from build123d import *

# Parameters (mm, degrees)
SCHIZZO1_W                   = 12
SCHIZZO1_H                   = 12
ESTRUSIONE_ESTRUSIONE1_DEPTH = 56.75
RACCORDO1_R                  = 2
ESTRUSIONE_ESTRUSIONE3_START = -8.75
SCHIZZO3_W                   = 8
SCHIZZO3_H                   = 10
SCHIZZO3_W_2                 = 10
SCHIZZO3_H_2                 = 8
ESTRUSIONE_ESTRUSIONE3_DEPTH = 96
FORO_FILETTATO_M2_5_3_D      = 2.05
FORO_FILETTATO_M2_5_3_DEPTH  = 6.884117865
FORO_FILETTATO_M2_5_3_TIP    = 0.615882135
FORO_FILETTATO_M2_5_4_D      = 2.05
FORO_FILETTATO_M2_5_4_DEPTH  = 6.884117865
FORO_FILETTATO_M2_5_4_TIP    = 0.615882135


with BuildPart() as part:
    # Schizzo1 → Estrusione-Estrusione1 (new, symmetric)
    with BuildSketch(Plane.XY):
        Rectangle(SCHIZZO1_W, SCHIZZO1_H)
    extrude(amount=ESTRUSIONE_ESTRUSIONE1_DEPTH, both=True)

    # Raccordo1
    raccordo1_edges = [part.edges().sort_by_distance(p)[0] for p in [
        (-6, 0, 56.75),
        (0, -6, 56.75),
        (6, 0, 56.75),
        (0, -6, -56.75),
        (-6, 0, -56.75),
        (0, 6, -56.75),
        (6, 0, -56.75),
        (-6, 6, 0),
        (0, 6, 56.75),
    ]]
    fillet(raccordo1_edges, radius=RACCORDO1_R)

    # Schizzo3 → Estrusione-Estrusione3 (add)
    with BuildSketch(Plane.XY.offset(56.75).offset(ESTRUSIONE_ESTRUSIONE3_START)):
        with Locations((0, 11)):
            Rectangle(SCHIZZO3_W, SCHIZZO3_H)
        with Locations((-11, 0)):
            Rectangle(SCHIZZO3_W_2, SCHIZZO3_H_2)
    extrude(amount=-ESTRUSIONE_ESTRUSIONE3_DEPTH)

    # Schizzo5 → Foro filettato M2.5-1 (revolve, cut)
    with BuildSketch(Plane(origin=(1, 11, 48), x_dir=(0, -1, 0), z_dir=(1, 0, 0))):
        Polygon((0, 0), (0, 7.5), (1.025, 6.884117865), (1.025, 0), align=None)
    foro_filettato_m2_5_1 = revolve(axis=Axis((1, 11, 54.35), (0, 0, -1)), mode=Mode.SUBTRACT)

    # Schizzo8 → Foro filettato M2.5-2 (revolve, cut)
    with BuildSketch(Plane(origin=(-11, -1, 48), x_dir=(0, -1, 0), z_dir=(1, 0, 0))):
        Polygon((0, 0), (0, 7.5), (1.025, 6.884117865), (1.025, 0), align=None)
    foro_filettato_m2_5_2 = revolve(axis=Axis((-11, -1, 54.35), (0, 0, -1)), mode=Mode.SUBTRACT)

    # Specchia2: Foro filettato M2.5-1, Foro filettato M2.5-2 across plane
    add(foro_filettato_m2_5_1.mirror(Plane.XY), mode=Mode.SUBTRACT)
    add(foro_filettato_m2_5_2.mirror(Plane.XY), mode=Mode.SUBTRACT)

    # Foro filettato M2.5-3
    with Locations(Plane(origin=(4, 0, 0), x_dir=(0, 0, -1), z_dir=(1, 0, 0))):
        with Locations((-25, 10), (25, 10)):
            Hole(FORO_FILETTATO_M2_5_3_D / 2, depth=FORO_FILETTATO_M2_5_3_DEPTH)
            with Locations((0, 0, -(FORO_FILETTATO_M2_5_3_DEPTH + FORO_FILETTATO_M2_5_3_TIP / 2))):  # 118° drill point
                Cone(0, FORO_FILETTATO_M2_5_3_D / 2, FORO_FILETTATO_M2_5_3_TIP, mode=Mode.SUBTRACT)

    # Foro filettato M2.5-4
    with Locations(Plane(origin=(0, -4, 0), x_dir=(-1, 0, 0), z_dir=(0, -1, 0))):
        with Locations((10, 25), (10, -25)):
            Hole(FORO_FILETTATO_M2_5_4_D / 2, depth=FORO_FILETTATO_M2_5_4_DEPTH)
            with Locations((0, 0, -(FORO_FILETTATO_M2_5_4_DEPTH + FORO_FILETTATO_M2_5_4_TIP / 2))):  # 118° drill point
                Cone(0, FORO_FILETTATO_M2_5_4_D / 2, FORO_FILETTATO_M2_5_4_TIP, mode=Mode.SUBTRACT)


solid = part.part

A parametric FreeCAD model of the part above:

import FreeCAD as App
import Part
import Sketcher
Q = App.Units.Quantity


def edges_at(feature, points):
    """Names of the edges that pass closest to the given points."""
    edges = feature.Shape.Edges
    near = lambda p: min(range(len(edges)), key=lambda i: edges[i].distToShape(Part.Vertex(*p))[0])
    return sorted({f"Edge{near(p) + 1}" for p in points})


def add_polygon(sketch, points):
    """Adds a closed chain of lines whose ends are joined by coincident constraints."""
    first, n = sketch.GeometryCount, len(points)
    for a, b in zip(points, points[1:] + points[:1]):
        sketch.addGeometry(Part.LineSegment(App.Vector(*a, 0), App.Vector(*b, 0)), False)
    for i in range(n):
        sketch.addConstraint(Sketcher.Constraint("Coincident", first + i, 2, first + (i + 1) % n, 1))

doc = App.newDocument("Part")
body = doc.addObject("PartDesign::Body", "Body")

sketch1 = body.newObject("Sketcher::SketchObject", "Sketch")
sketch1.AttachmentSupport = (doc.getObject("XY_Plane"), [""])
sketch1.MapMode = "FlatFace"
add_polygon(sketch1, [(-6, 6), (-6, -6), (6, -6), (6, 6)])
sketch1.addConstraint([
    Sketcher.Constraint("Vertical", 0),
    Sketcher.Constraint("Horizontal", 1),
    Sketcher.Constraint("Vertical", 2),
    Sketcher.Constraint("Horizontal", 3),
    Sketcher.Constraint("Symmetric", 0, 2, 2, 2, -1, 1),
    Sketcher.Constraint("Equal", 3, 0),
    Sketcher.Constraint("DistanceX", 1, 1, 1, 2, Q("12 mm")),
])
pad1 = body.newObject("PartDesign::Pad", "Pad")
pad1.Profile = sketch1
pad1.Length = 113.5
pad1.Midplane = True
doc.recompute()

fillet = body.newObject("PartDesign::Fillet", "Fillet")
fillet.Base = (pad1, edges_at(pad1, [
    (-6, 0, 56.75),
    (0, -6, 56.75),
    (6, 0, 56.75),
    (0, -6, -56.75),
    (-6, 0, -56.75),
    (0, 6, -56.75),
    (6, 0, -56.75),
    (-6, 6, 0),
    (0, 6, 56.75),
]))
fillet.Radius = 2

sketch2 = body.newObject("Sketcher::SketchObject", "Sketch001")
sketch2.AttachmentSupport = (doc.getObject("XY_Plane"), [""])
sketch2.MapMode = "FlatFace"
sketch2.AttachmentOffset = App.Placement(App.Vector(0, 0, 48), App.Rotation())
add_polygon(sketch2, [(-4, 16), (-4, 6), (4, 6), (4, 16)])
add_polygon(sketch2, [(-16, 4), (-16, -4), (-6, -4), (-6, 4)])
sketch2.addConstraint([
    Sketcher.Constraint("Vertical", 0),
    Sketcher.Constraint("Horizontal", 1),
    Sketcher.Constraint("Vertical", 2),
    Sketcher.Constraint("Horizontal", 3),
    Sketcher.Constraint("Vertical", 4),
    Sketcher.Constraint("Horizontal", 5),
    Sketcher.Constraint("Vertical", 6),
    Sketcher.Constraint("Horizontal", 7),
    Sketcher.Constraint("Equal", 7, 0),
    Sketcher.Constraint("Equal", 3, 4),
    Sketcher.Constraint("DistanceX", 1, 1, 1, 2, Q("8 mm")),
    Sketcher.Constraint("DistanceX", 5, 1, 5, 2, Q("10 mm")),
    Sketcher.Constraint("DistanceX", 0, 2, -1, 1, Q("4 mm")),
    Sketcher.Constraint("DistanceY", -1, 1, 0, 2, Q("6 mm")),
    Sketcher.Constraint("DistanceX", 4, 2, -1, 1, Q("16 mm")),
    Sketcher.Constraint("DistanceY", 4, 2, -1, 1, Q("4 mm")),
])
pad2 = body.newObject("PartDesign::Pad", "Pad001")
pad2.Profile = sketch2
pad2.Length = 96
pad2.Reversed = True

sketch3 = body.newObject("Sketcher::SketchObject", "Sketch002")
sketch3.AttachmentSupport = (doc.getObject("YZ_Plane"), [""])
sketch3.MapMode = "FlatFace"
sketch3.AttachmentOffset = App.Placement(App.Vector(0, 0, 1), App.Rotation())
add_polygon(sketch3, [(11, 40.5), (11, 48), (10, 48), (10, 41.1)])
sketch3.addGeometry(Part.LineSegment(App.Vector(11, 48, 0), App.Vector(11, 40.5, 0)), True)
sketch3.addConstraint([
    Sketcher.Constraint("Vertical", 0),
    Sketcher.Constraint("Horizontal", 1),
    Sketcher.Constraint("Vertical", 2),
    Sketcher.Constraint("Vertical", 4),
    Sketcher.Constraint("Coincident", 4, 1, 0, 2),
    Sketcher.Constraint("Equal", 0, 4),
    Sketcher.Constraint("Angle", 3, Q("-31 deg")),
    Sketcher.Constraint("DistanceY", 0, 1, 0, 2, Q("7.5 mm")),
    Sketcher.Constraint("DistanceX", -1, 1, 0, 2, Q("11 mm")),
    Sketcher.Constraint("DistanceY", -1, 1, 0, 2, Q("48 mm")),
    Sketcher.Constraint("DistanceX", 1, 2, 1, 1, Q("1.025 mm")),
])
groove = body.newObject("PartDesign::Groove", "Groove")
groove.Profile = sketch3
groove.ReferenceAxis = (sketch3, ["Axis0"])
groove.Angle = 360

sketch4 = body.newObject("Sketcher::SketchObject", "Sketch003")
sketch4.AttachmentSupport = (doc.getObject("YZ_Plane"), [""])
sketch4.MapMode = "FlatFace"
sketch4.AttachmentOffset = App.Placement(App.Vector(0, 0, -11), App.Rotation())
add_polygon(sketch4, [(-1, 40.5), (-1, 48), (-2, 48), (-2, 41.1)])
sketch4.addGeometry(Part.LineSegment(App.Vector(-1, 48, 0), App.Vector(-1, 40.5, 0)), True)
sketch4.addConstraint([
    Sketcher.Constraint("Vertical", 0),
    Sketcher.Constraint("Horizontal", 1),
    Sketcher.Constraint("Vertical", 2),
    Sketcher.Constraint("Vertical", 4),
    Sketcher.Constraint("Coincident", 4, 1, 0, 2),
    Sketcher.Constraint("Equal", 0, 4),
    Sketcher.Constraint("Angle", 3, Q("-31 deg")),
    Sketcher.Constraint("DistanceY", 0, 1, 0, 2, Q("7.5 mm")),
    Sketcher.Constraint("DistanceX", 0, 2, -1, 1, Q("1 mm")),
    Sketcher.Constraint("DistanceY", -1, 1, 0, 2, Q("48 mm")),
    Sketcher.Constraint("DistanceX", 1, 2, 1, 1, Q("1.025 mm")),
])
groove2 = body.newObject("PartDesign::Groove", "Groove001")
groove2.Profile = sketch4
groove2.ReferenceAxis = (sketch4, ["Axis0"])
groove2.Angle = 360
doc.recompute()

mirrored = body.newObject("PartDesign::Mirrored", "Mirrored")
mirrored.Originals = [groove, groove2]
mirrored.MirrorPlane = (doc.getObject("XY_Plane"), [""])
body.Tip = mirrored

sketch5 = body.newObject("Sketcher::SketchObject", "Sketch004")
sketch5.AttachmentSupport = (doc.getObject("YZ_Plane"), [""])
sketch5.MapMode = "FlatFace"
sketch5.AttachmentOffset = App.Placement(App.Vector(0, 0, 4), App.Rotation())
sketch5.addGeometry([
    Part.Circle(App.Vector(10, 25, 0), App.Vector(0, 0, 1), 1),
    Part.Circle(App.Vector(10, -25, 0), App.Vector(0, 0, 1), 1),
], False)
sketch5.addConstraint([
    Sketcher.Constraint("Equal", 0, 1),
    Sketcher.Constraint("Symmetric", 0, 3, 1, 3, -1),
    Sketcher.Constraint("Diameter", 0, Q("2.05 mm")),
    Sketcher.Constraint("DistanceX", -1, 1, 0, 3, Q("10 mm")),
    Sketcher.Constraint("DistanceY", -1, 1, 0, 3, Q("25 mm")),
])
doc.recompute()
hole = body.newObject("PartDesign::Hole", "Hole")
hole.Profile = sketch5
hole.ThreadType = "None"
hole.Diameter = 2.05
hole.DepthType = "Dimension"
hole.Depth = 6.884118
hole.DrillPoint = "Angled"
hole.DrillPointAngle = 118

sketch6 = body.newObject("Sketcher::SketchObject", "Sketch005")
sketch6.AttachmentSupport = (doc.getObject("XZ_Plane"), [""])
sketch6.MapMode = "FlatFace"
sketch6.AttachmentOffset = App.Placement(App.Vector(0, 0, 4), App.Rotation())
sketch6.addGeometry([
    Part.Circle(App.Vector(-10, -25, 0), App.Vector(0, 0, 1), 1),
    Part.Circle(App.Vector(-10, 25, 0), App.Vector(0, 0, 1), 1),
], False)
sketch6.addConstraint([
    Sketcher.Constraint("Equal", 0, 1),
    Sketcher.Constraint("Symmetric", 0, 3, 1, 3, -1),
    Sketcher.Constraint("Diameter", 0, Q("2.05 mm")),
    Sketcher.Constraint("DistanceX", 0, 3, -1, 1, Q("10 mm")),
    Sketcher.Constraint("DistanceY", 0, 3, -1, 1, Q("25 mm")),
])
doc.recompute()
hole2 = body.newObject("PartDesign::Hole", "Hole001")
hole2.Profile = sketch6
hole2.ThreadType = "None"
hole2.Diameter = 2.05
hole2.DepthType = "Dimension"
hole2.Depth = 6.884118
hole2.DrillPoint = "Angled"
hole2.DrillPointAngle = 118

doc.recompute()
